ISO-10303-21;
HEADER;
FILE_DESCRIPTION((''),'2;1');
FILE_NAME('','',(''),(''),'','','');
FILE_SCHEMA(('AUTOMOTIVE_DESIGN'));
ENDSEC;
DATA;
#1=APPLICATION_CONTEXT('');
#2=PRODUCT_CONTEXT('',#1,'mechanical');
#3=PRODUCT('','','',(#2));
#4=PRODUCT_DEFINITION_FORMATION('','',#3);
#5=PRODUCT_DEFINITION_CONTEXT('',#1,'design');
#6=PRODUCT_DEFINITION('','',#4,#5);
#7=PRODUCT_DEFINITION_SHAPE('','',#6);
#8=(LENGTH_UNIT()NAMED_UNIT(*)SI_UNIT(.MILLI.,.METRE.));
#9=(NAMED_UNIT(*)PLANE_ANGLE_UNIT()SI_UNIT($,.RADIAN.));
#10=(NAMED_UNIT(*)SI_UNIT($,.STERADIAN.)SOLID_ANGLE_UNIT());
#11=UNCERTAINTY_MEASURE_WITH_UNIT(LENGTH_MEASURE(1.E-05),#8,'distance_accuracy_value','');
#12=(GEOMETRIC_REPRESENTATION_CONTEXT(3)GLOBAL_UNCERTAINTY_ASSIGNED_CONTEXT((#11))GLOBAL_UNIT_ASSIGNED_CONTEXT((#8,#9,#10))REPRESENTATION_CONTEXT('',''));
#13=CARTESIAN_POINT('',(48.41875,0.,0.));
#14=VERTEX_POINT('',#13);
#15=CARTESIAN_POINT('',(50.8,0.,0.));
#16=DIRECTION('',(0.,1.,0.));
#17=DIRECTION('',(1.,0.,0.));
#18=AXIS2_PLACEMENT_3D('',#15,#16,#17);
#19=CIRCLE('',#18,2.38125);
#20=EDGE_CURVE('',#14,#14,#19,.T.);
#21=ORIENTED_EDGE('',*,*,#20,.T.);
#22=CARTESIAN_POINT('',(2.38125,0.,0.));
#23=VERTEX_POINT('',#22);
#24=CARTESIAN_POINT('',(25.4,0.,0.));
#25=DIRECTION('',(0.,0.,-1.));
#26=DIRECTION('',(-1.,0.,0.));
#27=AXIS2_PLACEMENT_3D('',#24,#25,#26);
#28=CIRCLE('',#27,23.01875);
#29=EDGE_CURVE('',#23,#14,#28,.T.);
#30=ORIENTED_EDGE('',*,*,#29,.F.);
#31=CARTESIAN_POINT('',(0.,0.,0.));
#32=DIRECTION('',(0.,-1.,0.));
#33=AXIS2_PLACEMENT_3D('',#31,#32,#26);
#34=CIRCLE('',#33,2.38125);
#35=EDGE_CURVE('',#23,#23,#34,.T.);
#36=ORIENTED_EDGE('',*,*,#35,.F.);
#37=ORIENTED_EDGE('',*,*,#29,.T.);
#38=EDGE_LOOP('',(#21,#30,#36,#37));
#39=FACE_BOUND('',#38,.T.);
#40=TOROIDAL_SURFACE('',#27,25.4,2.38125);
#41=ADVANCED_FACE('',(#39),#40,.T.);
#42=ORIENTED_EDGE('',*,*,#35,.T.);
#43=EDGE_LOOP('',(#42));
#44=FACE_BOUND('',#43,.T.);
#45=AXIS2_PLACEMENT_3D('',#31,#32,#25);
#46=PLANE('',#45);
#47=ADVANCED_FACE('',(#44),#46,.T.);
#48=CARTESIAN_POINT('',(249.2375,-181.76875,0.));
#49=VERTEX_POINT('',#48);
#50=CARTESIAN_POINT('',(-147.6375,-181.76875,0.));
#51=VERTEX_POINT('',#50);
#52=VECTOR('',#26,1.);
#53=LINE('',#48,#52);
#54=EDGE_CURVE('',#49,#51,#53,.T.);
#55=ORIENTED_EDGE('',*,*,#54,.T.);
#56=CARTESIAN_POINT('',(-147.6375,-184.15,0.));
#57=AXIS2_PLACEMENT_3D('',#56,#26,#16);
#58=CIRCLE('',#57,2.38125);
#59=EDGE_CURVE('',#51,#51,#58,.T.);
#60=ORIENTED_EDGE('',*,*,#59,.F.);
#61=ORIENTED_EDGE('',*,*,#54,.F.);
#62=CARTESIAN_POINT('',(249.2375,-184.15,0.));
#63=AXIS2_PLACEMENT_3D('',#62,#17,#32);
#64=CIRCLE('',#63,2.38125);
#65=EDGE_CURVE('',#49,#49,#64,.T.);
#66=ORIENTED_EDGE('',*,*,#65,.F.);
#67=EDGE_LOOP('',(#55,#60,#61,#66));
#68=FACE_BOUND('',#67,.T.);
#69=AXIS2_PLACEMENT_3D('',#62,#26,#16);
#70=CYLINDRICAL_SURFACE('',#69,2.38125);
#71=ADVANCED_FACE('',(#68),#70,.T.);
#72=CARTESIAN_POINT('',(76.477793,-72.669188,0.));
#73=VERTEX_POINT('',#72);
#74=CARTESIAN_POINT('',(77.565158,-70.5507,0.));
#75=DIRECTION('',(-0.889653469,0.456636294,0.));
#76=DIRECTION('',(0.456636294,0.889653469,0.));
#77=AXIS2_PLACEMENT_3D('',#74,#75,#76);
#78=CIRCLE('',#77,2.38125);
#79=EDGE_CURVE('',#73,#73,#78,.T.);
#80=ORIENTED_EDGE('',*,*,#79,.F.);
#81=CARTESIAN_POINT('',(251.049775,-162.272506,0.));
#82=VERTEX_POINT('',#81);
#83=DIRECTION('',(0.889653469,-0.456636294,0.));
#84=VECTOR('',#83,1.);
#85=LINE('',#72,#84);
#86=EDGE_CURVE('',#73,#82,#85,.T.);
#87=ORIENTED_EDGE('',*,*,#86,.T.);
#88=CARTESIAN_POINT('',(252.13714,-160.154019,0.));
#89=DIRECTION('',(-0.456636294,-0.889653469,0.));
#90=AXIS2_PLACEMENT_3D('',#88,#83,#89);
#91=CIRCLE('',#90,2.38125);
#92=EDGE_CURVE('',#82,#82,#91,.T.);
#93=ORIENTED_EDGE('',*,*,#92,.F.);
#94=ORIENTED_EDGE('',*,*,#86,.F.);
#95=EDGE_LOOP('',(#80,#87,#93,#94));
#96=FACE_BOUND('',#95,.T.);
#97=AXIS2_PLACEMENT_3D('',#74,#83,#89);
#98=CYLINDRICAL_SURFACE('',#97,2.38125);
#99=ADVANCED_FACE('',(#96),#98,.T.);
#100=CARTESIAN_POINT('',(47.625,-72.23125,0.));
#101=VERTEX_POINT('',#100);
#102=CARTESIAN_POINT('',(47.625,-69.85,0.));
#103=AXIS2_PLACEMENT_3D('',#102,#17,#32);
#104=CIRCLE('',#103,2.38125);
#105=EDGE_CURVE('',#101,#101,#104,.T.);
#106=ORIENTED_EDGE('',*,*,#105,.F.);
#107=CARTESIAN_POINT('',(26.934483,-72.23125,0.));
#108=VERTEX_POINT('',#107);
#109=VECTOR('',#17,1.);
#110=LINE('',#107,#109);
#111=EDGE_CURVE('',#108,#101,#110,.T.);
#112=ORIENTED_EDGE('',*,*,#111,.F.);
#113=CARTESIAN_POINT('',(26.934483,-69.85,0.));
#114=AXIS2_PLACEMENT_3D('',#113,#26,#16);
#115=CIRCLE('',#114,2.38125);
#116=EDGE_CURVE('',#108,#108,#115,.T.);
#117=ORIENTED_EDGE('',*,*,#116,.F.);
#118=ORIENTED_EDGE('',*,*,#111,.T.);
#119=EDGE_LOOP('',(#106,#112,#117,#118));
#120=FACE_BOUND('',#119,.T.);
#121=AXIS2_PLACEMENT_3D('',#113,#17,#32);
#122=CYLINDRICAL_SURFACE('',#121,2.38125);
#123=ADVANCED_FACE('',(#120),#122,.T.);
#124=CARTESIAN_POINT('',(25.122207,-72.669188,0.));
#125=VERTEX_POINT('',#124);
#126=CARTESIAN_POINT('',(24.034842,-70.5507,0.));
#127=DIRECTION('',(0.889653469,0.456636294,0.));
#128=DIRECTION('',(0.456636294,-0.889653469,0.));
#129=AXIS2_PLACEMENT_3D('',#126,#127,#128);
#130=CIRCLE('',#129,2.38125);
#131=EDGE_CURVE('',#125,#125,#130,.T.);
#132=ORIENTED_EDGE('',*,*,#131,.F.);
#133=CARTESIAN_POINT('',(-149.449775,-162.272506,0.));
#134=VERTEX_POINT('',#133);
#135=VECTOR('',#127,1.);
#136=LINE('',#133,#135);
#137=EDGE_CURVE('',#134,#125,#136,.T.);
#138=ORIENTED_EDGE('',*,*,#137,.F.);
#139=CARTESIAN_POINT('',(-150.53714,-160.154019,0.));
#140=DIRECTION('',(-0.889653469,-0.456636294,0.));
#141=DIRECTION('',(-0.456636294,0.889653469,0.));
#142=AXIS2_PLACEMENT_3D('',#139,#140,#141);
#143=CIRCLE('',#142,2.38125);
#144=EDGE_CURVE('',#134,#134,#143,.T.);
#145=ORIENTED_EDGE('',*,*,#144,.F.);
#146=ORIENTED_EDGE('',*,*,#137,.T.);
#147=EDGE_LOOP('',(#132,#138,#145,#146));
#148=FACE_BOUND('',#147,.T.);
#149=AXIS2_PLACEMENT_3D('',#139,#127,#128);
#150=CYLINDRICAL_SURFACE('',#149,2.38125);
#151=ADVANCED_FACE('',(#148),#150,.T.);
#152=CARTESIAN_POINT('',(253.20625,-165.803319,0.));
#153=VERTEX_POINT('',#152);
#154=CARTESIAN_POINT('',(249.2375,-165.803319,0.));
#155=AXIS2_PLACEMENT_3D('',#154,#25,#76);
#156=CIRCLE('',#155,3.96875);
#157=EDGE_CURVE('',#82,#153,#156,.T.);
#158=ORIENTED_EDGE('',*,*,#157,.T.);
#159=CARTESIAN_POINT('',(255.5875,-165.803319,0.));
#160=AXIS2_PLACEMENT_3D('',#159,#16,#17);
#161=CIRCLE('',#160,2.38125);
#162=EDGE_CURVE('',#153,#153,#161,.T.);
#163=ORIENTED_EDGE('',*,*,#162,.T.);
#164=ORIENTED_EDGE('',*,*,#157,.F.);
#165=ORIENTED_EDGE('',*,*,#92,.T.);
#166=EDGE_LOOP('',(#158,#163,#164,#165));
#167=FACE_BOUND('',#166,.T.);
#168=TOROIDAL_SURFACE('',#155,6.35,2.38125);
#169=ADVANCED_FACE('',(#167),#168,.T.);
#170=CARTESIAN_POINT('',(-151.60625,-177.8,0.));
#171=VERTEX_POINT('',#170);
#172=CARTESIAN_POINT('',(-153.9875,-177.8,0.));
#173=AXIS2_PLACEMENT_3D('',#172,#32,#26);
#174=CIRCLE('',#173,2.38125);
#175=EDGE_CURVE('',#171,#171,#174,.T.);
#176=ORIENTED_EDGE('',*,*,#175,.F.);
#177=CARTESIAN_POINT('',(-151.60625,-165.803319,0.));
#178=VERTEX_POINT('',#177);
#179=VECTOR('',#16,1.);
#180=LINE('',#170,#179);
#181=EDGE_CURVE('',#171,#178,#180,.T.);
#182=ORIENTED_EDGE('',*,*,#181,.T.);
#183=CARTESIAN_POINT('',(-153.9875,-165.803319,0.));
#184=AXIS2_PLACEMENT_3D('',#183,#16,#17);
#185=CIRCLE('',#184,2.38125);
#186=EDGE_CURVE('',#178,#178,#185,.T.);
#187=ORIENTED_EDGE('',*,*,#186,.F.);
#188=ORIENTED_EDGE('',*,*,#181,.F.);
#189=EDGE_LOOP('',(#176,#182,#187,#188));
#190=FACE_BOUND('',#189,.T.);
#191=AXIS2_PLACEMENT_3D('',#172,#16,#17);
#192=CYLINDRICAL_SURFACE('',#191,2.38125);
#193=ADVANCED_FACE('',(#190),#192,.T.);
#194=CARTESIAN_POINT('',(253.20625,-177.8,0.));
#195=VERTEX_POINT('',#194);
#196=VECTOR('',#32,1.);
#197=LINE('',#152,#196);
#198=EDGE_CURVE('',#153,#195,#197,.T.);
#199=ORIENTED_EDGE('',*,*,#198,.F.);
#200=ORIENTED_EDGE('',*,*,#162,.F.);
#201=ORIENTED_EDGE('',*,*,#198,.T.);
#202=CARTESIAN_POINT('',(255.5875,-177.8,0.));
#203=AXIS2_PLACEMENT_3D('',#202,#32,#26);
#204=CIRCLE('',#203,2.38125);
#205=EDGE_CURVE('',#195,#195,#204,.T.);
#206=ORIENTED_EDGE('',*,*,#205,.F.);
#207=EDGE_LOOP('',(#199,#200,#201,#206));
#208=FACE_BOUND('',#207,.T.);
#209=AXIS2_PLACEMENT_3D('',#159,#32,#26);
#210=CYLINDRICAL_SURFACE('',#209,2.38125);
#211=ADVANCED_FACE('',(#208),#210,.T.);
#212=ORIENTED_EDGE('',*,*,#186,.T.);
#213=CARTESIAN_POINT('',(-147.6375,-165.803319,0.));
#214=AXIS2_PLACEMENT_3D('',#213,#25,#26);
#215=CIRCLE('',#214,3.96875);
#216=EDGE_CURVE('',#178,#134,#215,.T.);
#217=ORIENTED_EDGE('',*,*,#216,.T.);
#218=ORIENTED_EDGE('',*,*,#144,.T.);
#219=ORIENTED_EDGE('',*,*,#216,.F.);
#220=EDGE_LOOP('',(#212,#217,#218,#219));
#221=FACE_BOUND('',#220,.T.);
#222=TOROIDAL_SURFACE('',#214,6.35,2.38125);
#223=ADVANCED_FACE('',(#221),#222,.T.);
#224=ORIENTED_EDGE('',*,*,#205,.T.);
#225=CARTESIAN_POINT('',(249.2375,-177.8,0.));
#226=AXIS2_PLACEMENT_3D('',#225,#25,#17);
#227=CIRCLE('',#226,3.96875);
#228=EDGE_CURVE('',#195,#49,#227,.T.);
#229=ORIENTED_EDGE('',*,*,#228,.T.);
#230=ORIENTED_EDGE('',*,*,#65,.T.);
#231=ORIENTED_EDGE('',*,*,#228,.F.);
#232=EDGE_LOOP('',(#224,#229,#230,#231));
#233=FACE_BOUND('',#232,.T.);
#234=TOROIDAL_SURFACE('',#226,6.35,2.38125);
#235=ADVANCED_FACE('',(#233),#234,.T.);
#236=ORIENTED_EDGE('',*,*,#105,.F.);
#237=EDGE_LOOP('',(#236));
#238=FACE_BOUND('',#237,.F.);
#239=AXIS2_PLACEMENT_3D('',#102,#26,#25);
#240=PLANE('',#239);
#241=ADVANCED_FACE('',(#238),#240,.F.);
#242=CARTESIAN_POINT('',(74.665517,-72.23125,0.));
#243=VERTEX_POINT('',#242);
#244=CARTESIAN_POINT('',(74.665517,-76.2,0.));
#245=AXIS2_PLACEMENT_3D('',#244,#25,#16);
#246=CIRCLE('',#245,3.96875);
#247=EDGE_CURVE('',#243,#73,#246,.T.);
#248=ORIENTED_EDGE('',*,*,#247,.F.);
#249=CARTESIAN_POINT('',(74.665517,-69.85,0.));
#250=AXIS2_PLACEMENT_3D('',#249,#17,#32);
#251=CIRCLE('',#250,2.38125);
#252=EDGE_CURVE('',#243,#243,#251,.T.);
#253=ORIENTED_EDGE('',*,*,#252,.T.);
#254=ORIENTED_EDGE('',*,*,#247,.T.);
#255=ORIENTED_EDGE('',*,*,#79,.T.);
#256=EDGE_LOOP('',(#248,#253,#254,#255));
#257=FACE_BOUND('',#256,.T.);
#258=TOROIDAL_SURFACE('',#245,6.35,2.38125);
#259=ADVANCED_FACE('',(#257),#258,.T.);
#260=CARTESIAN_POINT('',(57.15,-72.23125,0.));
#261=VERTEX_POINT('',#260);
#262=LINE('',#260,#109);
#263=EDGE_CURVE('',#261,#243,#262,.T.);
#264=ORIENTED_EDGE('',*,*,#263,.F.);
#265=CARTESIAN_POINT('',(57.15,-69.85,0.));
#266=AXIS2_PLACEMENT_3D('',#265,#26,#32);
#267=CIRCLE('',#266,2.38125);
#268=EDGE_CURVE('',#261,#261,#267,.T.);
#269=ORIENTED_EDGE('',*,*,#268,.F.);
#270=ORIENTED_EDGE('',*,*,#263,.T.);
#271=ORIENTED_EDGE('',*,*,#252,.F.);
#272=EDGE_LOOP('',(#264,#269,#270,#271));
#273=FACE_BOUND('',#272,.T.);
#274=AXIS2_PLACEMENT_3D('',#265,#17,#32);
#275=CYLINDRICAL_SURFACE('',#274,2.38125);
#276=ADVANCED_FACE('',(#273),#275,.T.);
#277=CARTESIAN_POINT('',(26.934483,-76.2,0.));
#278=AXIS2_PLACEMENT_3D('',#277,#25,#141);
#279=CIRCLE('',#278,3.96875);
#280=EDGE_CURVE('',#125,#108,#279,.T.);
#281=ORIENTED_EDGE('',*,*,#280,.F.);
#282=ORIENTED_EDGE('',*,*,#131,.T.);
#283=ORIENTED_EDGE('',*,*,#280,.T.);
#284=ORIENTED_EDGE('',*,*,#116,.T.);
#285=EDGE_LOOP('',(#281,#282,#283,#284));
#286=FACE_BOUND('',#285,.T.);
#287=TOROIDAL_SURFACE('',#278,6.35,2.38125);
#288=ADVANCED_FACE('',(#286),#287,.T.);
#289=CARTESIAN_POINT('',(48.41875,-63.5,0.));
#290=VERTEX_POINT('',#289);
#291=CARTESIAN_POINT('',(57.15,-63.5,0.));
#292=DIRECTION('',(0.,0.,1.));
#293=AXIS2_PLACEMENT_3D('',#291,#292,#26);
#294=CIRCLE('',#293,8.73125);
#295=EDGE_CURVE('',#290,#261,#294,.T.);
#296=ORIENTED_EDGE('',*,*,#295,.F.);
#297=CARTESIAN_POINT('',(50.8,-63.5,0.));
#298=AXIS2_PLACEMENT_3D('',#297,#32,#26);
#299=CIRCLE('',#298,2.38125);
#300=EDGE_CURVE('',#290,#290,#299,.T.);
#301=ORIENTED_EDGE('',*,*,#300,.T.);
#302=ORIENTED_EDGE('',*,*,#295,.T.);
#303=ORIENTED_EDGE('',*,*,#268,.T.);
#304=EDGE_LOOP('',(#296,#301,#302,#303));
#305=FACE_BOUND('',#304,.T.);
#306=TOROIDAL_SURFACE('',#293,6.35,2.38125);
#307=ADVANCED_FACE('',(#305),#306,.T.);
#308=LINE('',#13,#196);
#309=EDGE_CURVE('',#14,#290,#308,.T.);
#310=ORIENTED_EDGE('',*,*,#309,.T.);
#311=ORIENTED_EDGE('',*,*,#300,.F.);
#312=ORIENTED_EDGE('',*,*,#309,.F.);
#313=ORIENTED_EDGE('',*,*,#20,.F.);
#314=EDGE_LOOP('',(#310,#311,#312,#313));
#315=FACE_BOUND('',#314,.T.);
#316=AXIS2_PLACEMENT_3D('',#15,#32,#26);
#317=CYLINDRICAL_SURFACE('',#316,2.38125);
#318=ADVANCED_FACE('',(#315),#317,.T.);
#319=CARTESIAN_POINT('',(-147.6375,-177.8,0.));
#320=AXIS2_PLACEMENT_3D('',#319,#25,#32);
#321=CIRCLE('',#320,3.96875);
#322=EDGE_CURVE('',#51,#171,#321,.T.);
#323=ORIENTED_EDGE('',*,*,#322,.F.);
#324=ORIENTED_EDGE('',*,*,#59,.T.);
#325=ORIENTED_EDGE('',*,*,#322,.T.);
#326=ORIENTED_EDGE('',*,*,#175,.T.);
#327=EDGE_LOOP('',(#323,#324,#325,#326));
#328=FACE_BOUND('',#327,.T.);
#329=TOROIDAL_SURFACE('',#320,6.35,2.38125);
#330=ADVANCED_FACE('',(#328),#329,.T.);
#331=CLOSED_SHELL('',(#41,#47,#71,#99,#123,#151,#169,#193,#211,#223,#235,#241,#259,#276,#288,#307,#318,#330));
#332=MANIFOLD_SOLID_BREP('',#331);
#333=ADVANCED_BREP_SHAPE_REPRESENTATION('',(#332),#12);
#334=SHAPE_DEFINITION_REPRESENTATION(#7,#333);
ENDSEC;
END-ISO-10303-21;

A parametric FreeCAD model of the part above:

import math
import FreeCAD as App
import Part
import Sketcher
Q = App.Units.Quantity

doc = App.newDocument("Part")
params = doc.addObject("Spreadsheet::Sheet", "Params")
for row, (alias, value) in enumerate([
    ("sketch1_diameter", "0.1875 in"),
    ("sketch2_radius", "1 in"),
    ("sketch2_radius2", "0.25 in"),
    ("sketch2_radius3", "0.25 in"),
    ("sketch2_radius4", "0.25 in"),
    ("sketch2_radius5", "0.25 in"),
], start=1):
    params.set(f"A{row}", alias)
    params.set(f"B{row}", "=" + value)
    params.setAlias(f"B{row}", alias)

body = doc.addObject("PartDesign::Body", "Body")

sketch1 = body.newObject("Sketcher::SketchObject", "Sketch")
sketch1.AttachmentSupport = (doc.getObject("XZ_Plane"), [""])
sketch1.MapMode = "FlatFace"
sketch1.addGeometry(Part.Circle(App.Vector(0, 0, 0), App.Vector(0, 0, 1), 2.4), False)
sketch1.addConstraint([
    Sketcher.Constraint("Coincident", 0, 3, -1, 1),
    Sketcher.Constraint("Diameter", 0, Q("0.1875 in")),
])
sketch1.setExpression("Constraints[1]", "Params.sketch1_diameter")

sketch2 = body.newObject("Sketcher::SketchObject", "Sketch001")
sketch2.AttachmentSupport = (doc.getObject("XY_Plane"), [""])
sketch2.MapMode = "FlatFace"
sketch2.addGeometry([
    Part.ArcOfCircle(Part.Circle(App.Vector(25.4, 0, 0), App.Vector(0, 0, 1), 25.4), math.radians(0), math.radians(180)),
    Part.LineSegment(App.Vector(50.8, 0, 0), App.Vector(50.8, -63.5, 0)),
    Part.ArcOfCircle(Part.Circle(App.Vector(57.15, -63.5, 0), App.Vector(0, 0, 1), 6.35), math.radians(180), math.radians(270)),
    Part.LineSegment(App.Vector(57.15, -69.85, 0), App.Vector(74.665517, -69.85, 0)),
    Part.ArcOfCircle(Part.Circle(App.Vector(74.665517, -76.2, 0), App.Vector(0, 0, 1), 6.35), math.radians(62.829734), math.radians(90)),
    Part.LineSegment(App.Vector(77.565158, -70.5507, 0), App.Vector(252.13714, -160.154019, 0)),
    Part.ArcOfCircle(Part.Circle(App.Vector(249.2375, -165.803319, 0), App.Vector(0, 0, 1), 6.35), math.radians(0), math.radians(62.829734)),
    Part.LineSegment(App.Vector(255.5875, -165.803319, 0), App.Vector(255.5875, -177.8, 0)),
    Part.ArcOfCircle(Part.Circle(App.Vector(249.2375, -177.8, 0), App.Vector(0, 0, 1), 6.35), math.radians(-90), math.radians(0)),
    Part.LineSegment(App.Vector(249.2375, -184.15, 0), App.Vector(-147.6375, -184.15, 0)),
    Part.ArcOfCircle(Part.Circle(App.Vector(-147.6375, -177.8, 0), App.Vector(0, 0, 1), 6.35), math.radians(180), math.radians(270)),
    Part.LineSegment(App.Vector(-153.9875, -177.8, 0), App.Vector(-153.9875, -165.803319, 0)),
    Part.ArcOfCircle(Part.Circle(App.Vector(-147.6375, -165.803319, 0), App.Vector(0, 0, 1), 6.35), math.radians(117.170266), math.radians(180)),
    Part.LineSegment(App.Vector(-150.53714, -160.154019, 0), App.Vector(24.034842, -70.5507, 0)),
    Part.ArcOfCircle(Part.Circle(App.Vector(26.934483, -76.2, 0), App.Vector(0, 0, 1), 6.35), math.radians(90), math.radians(117.170266)),
    Part.LineSegment(App.Vector(26.934483, -69.85, 0), App.Vector(47.625, -69.85, 0)),
], False)
sketch2.addConstraint([
    Sketcher.Constraint("Coincident", 0, 1, 1, 1),
    Sketcher.Constraint("Coincident", 1, 2, 2, 1),
    Sketcher.Constraint("Coincident", 2, 2, 3, 1),
    Sketcher.Constraint("Coincident", 3, 2, 4, 2),
    Sketcher.Constraint("Coincident", 4, 1, 5, 1),
    Sketcher.Constraint("Coincident", 5, 2, 6, 2),
    Sketcher.Constraint("Coincident", 6, 1, 7, 1),
    Sketcher.Constraint("Coincident", 7, 2, 8, 2),
    Sketcher.Constraint("Coincident", 8, 1, 9, 1),
    Sketcher.Constraint("Coincident", 9, 2, 10, 2),
    Sketcher.Constraint("Coincident", 10, 1, 11, 1),
    Sketcher.Constraint("Coincident", 11, 2, 12, 2),
    Sketcher.Constraint("Coincident", 12, 1, 13, 1),
    Sketcher.Constraint("Coincident", 13, 2, 14, 2),
    Sketcher.Constraint("Coincident", 14, 1, 15, 1),
    Sketcher.Constraint("Vertical", 1),
    Sketcher.Constraint("Horizontal", 3),
    Sketcher.Constraint("Vertical", 7),
    Sketcher.Constraint("Horizontal", 9),
    Sketcher.Constraint("Vertical", 11),
    Sketcher.Constraint("Horizontal", 15),
    Sketcher.Constraint("Coincident", 0, 2, -1, 1),
    Sketcher.Constraint("PointOnObject", 0, 3, -1),
    Sketcher.Constraint("PointOnObject", 0, 1, -1),
    Sketcher.Constraint("Radius", 0, Q("1 in")),
    Sketcher.Constraint("Radius", 2, Q("0.25 in")),
    Sketcher.Constraint("Radius", 4, Q("0.25 in")),
    Sketcher.Constraint("Radius", 6, Q("0.25 in")),
    Sketcher.Constraint("Radius", 8, Q("0.25 in")),
    Sketcher.Constraint("Radius", 10, Q("0.25 in")),
    Sketcher.Constraint("Radius", 12, Q("0.25 in")),
    Sketcher.Constraint("Radius", 14, Q("0.25 in")),
    Sketcher.Constraint("DistanceY", 1, 2, 1, 1, Q("2.5 in")),
    Sketcher.Constraint("DistanceY", 4, 3, -1, 1, Q("3 in")),
    Sketcher.Constraint("DistanceY", 8, 3, -1, 1, Q("7 in")),
    Sketcher.Constraint("DistanceY", 14, 3, -1, 1, Q("3 in")),
    Sketcher.Constraint("DistanceY", 7, 2, -1, 1, Q("7 in")),
    Sketcher.Constraint("DistanceY", 10, 1, -1, 1, Q("7 in")),
    Sketcher.Constraint("DistanceX", 9, 2, 9, 1, Q("15.625 in")),
    Sketcher.Constraint("DistanceX", -1, 1, 2, 2, Q("2.25 in")),
    Sketcher.Constraint("DistanceX", 8, 1, 7, 2, Q("0.25 in")),
    Sketcher.Constraint("DistanceX", 10, 1, 9, 2, Q("0.25 in")),
    Sketcher.Constraint("DistanceX", -1, 1, 6, 3, Q("9.8125 in")),
    Sketcher.Constraint("DistanceX", -1, 1, 15, 2, Q("1.875 in")),
    Sketcher.Constraint("DistanceY", 7, 2, 7, 1, Q("11.996681 mm")),
    Sketcher.Constraint("DistanceY", 11, 1, 11, 2, Q("11.996681 mm")),
    Sketcher.Constraint("DistanceY", 4, 1, -1, 1, Q("70.5507 mm")),
    Sketcher.Constraint("DistanceY", 13, 2, -1, 1, Q("70.5507 mm")),
    Sketcher.Constraint("DistanceY", 6, 3, 5, 2, Q("5.6493 mm")),
    Sketcher.Constraint("DistanceY", 6, 1, 5, 2, Q("5.6493 mm")),
    Sketcher.Constraint("DistanceY", 12, 3, 12, 1, Q("5.6493 mm")),
    Sketcher.Constraint("DistanceY", 11, 2, 12, 1, Q("5.6493 mm")),
    Sketcher.Constraint("DistanceX", 3, 1, 3, 2, Q("17.515517 mm")),
    Sketcher.Constraint("DistanceX", 15, 1, 15, 2, Q("20.690517 mm")),
    Sketcher.Constraint("DistanceX", 3, 2, 4, 1, Q("2.89964 mm")),
    Sketcher.Constraint("DistanceX", 13, 2, 14, 1, Q("2.89964 mm")),
])
sketch2.setExpression("Constraints[24]", "Params.sketch2_radius")
sketch2.setExpression("Constraints[25]", "Params.sketch2_radius2")
sketch2.setExpression("Constraints[26]", "Params.sketch2_radius3")
sketch2.setExpression("Constraints[27]", "Params.sketch2_radius4")
sketch2.setExpression("Constraints[28]", "Params.sketch2_radius5")
doc.recompute()

additivepipe = body.newObject("PartDesign::AdditivePipe", "AdditivePipe")
additivepipe.Profile = sketch1
additivepipe.Spine = (sketch2, ["Edge1", "Edge2", "Edge3", "Edge4", "Edge5", "Edge6", "Edge7", "Edge8", "Edge9", "Edge10", "Edge11", "Edge12", "Edge13", "Edge14", "Edge15", "Edge16"])

doc.recompute()
